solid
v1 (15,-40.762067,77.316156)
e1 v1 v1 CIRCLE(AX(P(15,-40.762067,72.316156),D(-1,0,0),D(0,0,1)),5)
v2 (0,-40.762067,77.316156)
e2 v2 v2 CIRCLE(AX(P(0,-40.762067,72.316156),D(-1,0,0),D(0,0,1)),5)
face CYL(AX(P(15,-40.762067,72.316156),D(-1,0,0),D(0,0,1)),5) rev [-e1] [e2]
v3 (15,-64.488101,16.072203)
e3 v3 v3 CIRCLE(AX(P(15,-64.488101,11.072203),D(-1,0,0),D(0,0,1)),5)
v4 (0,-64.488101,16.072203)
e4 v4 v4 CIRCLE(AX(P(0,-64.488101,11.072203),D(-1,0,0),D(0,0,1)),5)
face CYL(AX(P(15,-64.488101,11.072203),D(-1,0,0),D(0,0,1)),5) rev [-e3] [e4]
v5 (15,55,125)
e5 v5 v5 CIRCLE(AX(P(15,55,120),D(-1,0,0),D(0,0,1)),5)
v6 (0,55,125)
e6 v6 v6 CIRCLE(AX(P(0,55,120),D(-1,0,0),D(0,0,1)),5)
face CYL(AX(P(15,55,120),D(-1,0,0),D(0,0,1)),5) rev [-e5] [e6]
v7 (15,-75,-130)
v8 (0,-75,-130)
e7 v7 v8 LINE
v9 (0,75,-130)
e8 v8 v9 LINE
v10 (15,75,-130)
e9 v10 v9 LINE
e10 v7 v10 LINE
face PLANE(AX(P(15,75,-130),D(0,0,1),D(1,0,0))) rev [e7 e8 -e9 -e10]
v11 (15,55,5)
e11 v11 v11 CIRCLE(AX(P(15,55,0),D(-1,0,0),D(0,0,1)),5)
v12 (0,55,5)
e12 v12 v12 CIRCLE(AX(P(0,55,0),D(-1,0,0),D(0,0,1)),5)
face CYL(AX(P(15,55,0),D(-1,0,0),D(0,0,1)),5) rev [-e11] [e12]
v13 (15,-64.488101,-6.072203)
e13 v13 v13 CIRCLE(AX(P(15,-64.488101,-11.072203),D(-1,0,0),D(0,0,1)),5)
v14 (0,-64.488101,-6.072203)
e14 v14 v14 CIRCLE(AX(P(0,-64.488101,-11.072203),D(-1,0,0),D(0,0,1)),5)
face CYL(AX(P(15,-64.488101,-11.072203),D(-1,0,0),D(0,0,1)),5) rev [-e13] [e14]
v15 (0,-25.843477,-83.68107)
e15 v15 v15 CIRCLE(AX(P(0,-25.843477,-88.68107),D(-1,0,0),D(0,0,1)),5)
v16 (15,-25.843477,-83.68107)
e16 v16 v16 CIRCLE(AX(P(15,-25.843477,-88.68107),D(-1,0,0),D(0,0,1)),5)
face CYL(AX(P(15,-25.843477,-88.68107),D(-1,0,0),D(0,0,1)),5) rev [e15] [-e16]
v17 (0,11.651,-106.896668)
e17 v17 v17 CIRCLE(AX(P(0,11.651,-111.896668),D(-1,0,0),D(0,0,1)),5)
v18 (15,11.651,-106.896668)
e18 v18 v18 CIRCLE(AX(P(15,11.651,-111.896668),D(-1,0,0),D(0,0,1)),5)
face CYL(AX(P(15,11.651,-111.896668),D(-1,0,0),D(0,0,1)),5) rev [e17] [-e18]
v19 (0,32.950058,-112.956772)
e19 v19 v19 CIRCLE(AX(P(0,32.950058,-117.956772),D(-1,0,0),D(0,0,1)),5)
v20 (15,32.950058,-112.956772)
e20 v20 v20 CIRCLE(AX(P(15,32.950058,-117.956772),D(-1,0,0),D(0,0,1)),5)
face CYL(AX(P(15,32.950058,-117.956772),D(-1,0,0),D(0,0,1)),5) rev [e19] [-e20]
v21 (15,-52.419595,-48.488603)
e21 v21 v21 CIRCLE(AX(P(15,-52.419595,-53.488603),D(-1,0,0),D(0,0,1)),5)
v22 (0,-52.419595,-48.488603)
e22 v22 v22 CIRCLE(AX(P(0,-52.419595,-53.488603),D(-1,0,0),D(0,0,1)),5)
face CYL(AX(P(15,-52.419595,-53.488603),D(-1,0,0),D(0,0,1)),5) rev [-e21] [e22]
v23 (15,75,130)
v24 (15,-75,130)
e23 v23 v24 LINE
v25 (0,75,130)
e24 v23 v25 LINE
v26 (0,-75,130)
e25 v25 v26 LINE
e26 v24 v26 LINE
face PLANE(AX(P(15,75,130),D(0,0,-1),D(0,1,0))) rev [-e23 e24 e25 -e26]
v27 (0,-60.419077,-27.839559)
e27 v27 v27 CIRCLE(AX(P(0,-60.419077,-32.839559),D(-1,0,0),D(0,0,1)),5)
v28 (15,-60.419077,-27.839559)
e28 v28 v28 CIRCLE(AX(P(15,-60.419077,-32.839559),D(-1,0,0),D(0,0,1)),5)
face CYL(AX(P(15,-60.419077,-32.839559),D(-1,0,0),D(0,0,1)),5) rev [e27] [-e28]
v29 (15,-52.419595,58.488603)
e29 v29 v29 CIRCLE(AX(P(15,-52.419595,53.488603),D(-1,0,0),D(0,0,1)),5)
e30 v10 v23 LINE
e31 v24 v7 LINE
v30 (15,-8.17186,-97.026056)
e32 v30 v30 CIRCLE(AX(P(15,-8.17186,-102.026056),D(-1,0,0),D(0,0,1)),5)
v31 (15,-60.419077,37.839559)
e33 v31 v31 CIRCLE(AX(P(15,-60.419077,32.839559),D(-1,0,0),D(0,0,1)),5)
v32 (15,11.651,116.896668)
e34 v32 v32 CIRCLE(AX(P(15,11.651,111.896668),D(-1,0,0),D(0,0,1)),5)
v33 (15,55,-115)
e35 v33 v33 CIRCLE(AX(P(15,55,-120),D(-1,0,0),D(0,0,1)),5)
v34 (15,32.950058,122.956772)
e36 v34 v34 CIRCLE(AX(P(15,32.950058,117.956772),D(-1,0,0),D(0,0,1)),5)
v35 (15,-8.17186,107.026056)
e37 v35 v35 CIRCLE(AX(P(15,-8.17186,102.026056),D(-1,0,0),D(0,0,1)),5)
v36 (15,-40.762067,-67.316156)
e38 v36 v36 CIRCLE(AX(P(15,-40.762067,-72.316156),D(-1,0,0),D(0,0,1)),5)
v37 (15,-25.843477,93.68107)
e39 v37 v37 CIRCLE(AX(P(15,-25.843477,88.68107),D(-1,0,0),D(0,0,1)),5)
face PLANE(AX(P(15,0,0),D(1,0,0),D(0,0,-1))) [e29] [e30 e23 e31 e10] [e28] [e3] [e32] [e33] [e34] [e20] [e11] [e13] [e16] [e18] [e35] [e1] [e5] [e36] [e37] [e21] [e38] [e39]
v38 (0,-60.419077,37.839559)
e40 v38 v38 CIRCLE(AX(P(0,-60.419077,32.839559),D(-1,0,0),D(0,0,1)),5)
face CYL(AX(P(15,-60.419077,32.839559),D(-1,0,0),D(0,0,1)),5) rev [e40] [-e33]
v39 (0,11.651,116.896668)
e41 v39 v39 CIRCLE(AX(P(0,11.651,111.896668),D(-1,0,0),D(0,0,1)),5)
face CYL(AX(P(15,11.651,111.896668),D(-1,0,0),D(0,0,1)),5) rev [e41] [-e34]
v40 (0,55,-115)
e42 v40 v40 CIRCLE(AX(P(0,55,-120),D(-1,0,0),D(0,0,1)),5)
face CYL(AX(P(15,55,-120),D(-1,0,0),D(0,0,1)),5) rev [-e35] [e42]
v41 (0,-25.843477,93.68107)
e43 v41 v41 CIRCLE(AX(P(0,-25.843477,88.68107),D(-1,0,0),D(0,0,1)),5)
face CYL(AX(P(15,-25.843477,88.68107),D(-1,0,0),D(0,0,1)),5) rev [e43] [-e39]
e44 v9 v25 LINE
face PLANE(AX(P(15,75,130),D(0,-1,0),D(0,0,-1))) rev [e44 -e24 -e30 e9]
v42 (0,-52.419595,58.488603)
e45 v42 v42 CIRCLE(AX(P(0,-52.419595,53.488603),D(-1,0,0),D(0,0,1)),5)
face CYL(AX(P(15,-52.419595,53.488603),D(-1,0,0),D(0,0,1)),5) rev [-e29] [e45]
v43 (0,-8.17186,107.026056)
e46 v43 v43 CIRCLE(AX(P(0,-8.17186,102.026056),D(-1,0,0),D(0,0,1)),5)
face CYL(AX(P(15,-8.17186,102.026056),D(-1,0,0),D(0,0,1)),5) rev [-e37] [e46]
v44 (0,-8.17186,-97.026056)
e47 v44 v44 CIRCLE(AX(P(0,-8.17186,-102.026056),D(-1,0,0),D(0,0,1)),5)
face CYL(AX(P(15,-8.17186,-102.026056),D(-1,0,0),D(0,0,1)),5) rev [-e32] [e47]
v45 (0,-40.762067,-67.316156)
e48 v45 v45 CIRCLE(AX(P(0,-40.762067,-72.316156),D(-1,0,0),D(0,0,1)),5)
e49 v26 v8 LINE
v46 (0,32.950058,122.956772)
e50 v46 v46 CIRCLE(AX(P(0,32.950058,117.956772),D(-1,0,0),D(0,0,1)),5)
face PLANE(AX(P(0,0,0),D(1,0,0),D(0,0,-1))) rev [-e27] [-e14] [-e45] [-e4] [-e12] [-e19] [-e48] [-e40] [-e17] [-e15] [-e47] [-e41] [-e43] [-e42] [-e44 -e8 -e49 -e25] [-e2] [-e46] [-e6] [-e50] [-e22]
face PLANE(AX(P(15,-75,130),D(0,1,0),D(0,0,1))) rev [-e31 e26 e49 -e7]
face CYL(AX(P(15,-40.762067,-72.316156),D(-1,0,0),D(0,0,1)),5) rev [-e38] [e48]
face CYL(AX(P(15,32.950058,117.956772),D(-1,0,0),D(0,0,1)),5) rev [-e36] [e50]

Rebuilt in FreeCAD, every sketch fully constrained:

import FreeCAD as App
import Part
import Sketcher
Q = App.Units.Quantity

doc = App.newDocument("Part")
params = doc.addObject("Spreadsheet::Sheet", "Params")
for row, (alias, value) in enumerate([
    ("sketch1_width", "150 mm"),
    ("sketch1_height", "260 mm"),
    ("pad1_length", "15 mm"),
    ("sketch2_diameter", "10 mm"),
    ("sketch3_diameter", "10 mm"),
], start=1):
    params.set(f"A{row}", alias)
    params.set(f"B{row}", "=" + value)
    params.setAlias(f"B{row}", alias)

body = doc.addObject("PartDesign::Body", "Body")

# Sketch on YZ plane
sketch1 = doc.addObject("Sketcher::SketchObject", "Sketch")
body.addObject(sketch1)
sketch1.AttachmentSupport = (doc.YZ_Plane, [""])
sketch1.MapMode = "FlatFace"
sketch1.addGeometry([
    Part.LineSegment(App.Vector(75, 130, 0), App.Vector(-75, 130, 0)),
    Part.LineSegment(App.Vector(-75, 130, 0), App.Vector(-75, -130, 0)),
    Part.LineSegment(App.Vector(-75, -130, 0), App.Vector(75, -130, 0)),
    Part.LineSegment(App.Vector(75, -130, 0), App.Vector(75, 130, 0)),
], False)
sketch1.addConstraint([
    Sketcher.Constraint("Coincident", 0, 2, 1, 1),
    Sketcher.Constraint("Coincident", 1, 2, 2, 1),
    Sketcher.Constraint("Coincident", 2, 2, 3, 1),
    Sketcher.Constraint("Coincident", 3, 2, 0, 1),
    Sketcher.Constraint("Horizontal", 0),
    Sketcher.Constraint("Vertical", 1),
    Sketcher.Constraint("Horizontal", 2),
    Sketcher.Constraint("Vertical", 3),
    Sketcher.Constraint("Symmetric", 0, 2, 2, 2, -1, 1),
    Sketcher.Constraint("DistanceX", 0, 2, 0, 1, Q("150 mm")),
    Sketcher.Constraint("DistanceY", 1, 2, 1, 1, Q("260 mm")),
])
sketch1.setExpression("Constraints[9]", "Params.sketch1_width")
sketch1.setExpression("Constraints[10]", "Params.sketch1_height")
pad1 = doc.addObject("PartDesign::Pad", "Pad")
body.addObject(pad1)
pad1.Profile = sketch1
pad1.setExpression("Length", "Params.pad1_length")

# Sketch on YZ plane
sketch2 = doc.addObject("Sketcher::SketchObject", "Sketch001")
body.addObject(sketch2)
sketch2.AttachmentSupport = (doc.YZ_Plane, [""])
sketch2.MapMode = "FlatFace"
sketch2.addGeometry(Part.Circle(App.Vector(55, 0, 0), App.Vector(0, 0, 1), 5), False)
sketch2.addConstraint([
    Sketcher.Constraint("PointOnObject", 0, 3, -1),
    Sketcher.Constraint("Diameter", 0, Q("10 mm")),
    Sketcher.Constraint("DistanceX", -1, 1, 0, 3, Q("55 mm")),
])
sketch2.setExpression("Constraints[1]", "Params.sketch2_diameter")
pocket1 = doc.addObject("PartDesign::Pocket", "Pocket")
body.addObject(pocket1)
pocket1.Profile = sketch2
pocket1.Type = "ThroughAll"
pocket1.Reversed = True

# Sketch on YZ plane
sketch3 = doc.addObject("Sketcher::SketchObject", "Sketch002")
body.addObject(sketch3)
sketch3.AttachmentSupport = (doc.YZ_Plane, [""])
sketch3.MapMode = "FlatFace"
sketch3.addGeometry([
    Part.Circle(App.Vector(55, -120, 0), App.Vector(0, 0, 1), 5),  # 0
    Part.Circle(App.Vector(32.950058, -117.956772, 0), App.Vector(0, 0, 1), 5),  # 1
    Part.Circle(App.Vector(11.651, -111.896668, 0), App.Vector(0, 0, 1), 5),  # 2
    Part.Circle(App.Vector(-8.17186, -102.026056, 0), App.Vector(0, 0, 1), 5),  # 3
    Part.Circle(App.Vector(-25.843477, -88.68107, 0), App.Vector(0, 0, 1), 5),  # 4
    Part.Circle(App.Vector(-40.762067, -72.316156, 0), App.Vector(0, 0, 1), 5),  # 5
    Part.Circle(App.Vector(-52.419595, -53.488603, 0), App.Vector(0, 0, 1), 5),  # 6
    Part.Circle(App.Vector(-60.419077, -32.839559, 0), App.Vector(0, 0, 1), 5),  # 7
    Part.Circle(App.Vector(-64.488101, -11.072203, 0), App.Vector(0, 0, 1), 5),  # 8
    Part.Circle(App.Vector(-64.488101, 11.072203, 0), App.Vector(0, 0, 1), 5),  # 9
    Part.Circle(App.Vector(-60.419077, 32.839559, 0), App.Vector(0, 0, 1), 5),  # 10
    Part.Circle(App.Vector(-52.419595, 53.488603, 0), App.Vector(0, 0, 1), 5),  # 11
    Part.Circle(App.Vector(-40.762067, 72.316156, 0), App.Vector(0, 0, 1), 5),  # 12
    Part.Circle(App.Vector(-25.843477, 88.68107, 0), App.Vector(0, 0, 1), 5),  # 13
    Part.Circle(App.Vector(-8.17186, 102.026056, 0), App.Vector(0, 0, 1), 5),  # 14
    Part.Circle(App.Vector(11.651, 111.896668, 0), App.Vector(0, 0, 1), 5),  # 15
    Part.Circle(App.Vector(32.950058, 117.956772, 0), App.Vector(0, 0, 1), 5),  # 16
    Part.Circle(App.Vector(55, 120, 0), App.Vector(0, 0, 1), 5),  # 17
], False)
sketch3.addConstraint([
    Sketcher.Constraint("Equal", 0, 1),
    Sketcher.Constraint("Equal", 1, 2),
    Sketcher.Constraint("Equal", 2, 3),
    Sketcher.Constraint("Equal", 3, 4),
    Sketcher.Constraint("Equal", 4, 5),
    Sketcher.Constraint("Equal", 5, 6),
    Sketcher.Constraint("Equal", 6, 7),
    Sketcher.Constraint("Equal", 7, 8),
    Sketcher.Constraint("Equal", 8, 9),
    Sketcher.Constraint("Equal", 9, 10),
    Sketcher.Constraint("Equal", 10, 11),
    Sketcher.Constraint("Equal", 11, 12),
    Sketcher.Constraint("Equal", 12, 13),
    Sketcher.Constraint("Equal", 13, 14),
    Sketcher.Constraint("Equal", 14, 15),
    Sketcher.Constraint("Equal", 15, 16),
    Sketcher.Constraint("Equal", 16, 17),
    Sketcher.Constraint("Symmetric", 8, 3, 9, 3, -1),
    Sketcher.Constraint("Symmetric", 7, 3, 10, 3, -1),
    Sketcher.Constraint("Symmetric", 6, 3, 11, 3, -1),
    Sketcher.Constraint("Symmetric", 5, 3, 12, 3, -1),
    Sketcher.Constraint("Symmetric", 4, 3, 13, 3, -1),
    Sketcher.Constraint("Symmetric", 3, 3, 14, 3, -1),
    Sketcher.Constraint("Symmetric", 2, 3, 15, 3, -1),
    Sketcher.Constraint("Symmetric", 1, 3, 16, 3, -1),
    Sketcher.Constraint("Symmetric", 0, 3, 17, 3, -1),
    Sketcher.Constraint("Diameter", 0, Q("10 mm")),
    Sketcher.Constraint("DistanceX", -1, 1, 0, 3, Q("55 mm")),
    Sketcher.Constraint("DistanceY", 0, 3, -1, 1, Q("120 mm")),
    Sketcher.Constraint("DistanceX", -1, 1, 2, 3, Q("11.651 mm")),
    Sketcher.Constraint("DistanceX", 8, 3, -1, 1, Q("64.488101 mm")),
    Sketcher.Constraint("DistanceY", 1, 3, 4, 3, Q("29.275702 mm")),
    Sketcher.Constraint("DistanceY", 3, 3, 5, 3, Q("29.7099 mm")),
    Sketcher.Constraint("DistanceX", 7, 3, 4, 3, Q("34.5756 mm")),
    Sketcher.Constraint("DistanceY", 6, 3, 8, 3, Q("42.4164 mm")),
    Sketcher.Constraint("DistanceY", 1, 3, -1, 1, Q("117.956772 mm")),
    Sketcher.Constraint("DistanceX", 3, 3, -1, 1, Q("8.17186 mm")),
    Sketcher.Constraint("DistanceY", 7, 3, -1, 1, Q("32.839559 mm")),
    Sketcher.Constraint("DistanceY", 2, 3, 3, 3, Q("9.870611 mm")),
    Sketcher.Constraint("DistanceX", 5, 3, 4, 3, Q("14.91859 mm")),
    Sketcher.Constraint("DistanceY", 1, 3, 6, 3, Q("64.468169 mm")),
    Sketcher.Constraint("DistanceY", 2, 3, 7, 3, Q("79.057109 mm")),
    Sketcher.Constraint("DistanceX", -1, 1, 1, 3, Q("32.950058 mm")),
    Sketcher.Constraint("DistanceX", 4, 3, -1, 1, Q("25.843477 mm")),
    Sketcher.Constraint("DistanceX", 6, 3, -1, 1, Q("52.419595 mm")),
])
sketch3.setExpression("Constraints[26]", "Params.sketch3_diameter")
pocket2 = doc.addObject("PartDesign::Pocket", "Pocket001")
body.addObject(pocket2)
pocket2.Profile = sketch3
pocket2.Type = "ThroughAll"
pocket2.Reversed = True

doc.recompute()
